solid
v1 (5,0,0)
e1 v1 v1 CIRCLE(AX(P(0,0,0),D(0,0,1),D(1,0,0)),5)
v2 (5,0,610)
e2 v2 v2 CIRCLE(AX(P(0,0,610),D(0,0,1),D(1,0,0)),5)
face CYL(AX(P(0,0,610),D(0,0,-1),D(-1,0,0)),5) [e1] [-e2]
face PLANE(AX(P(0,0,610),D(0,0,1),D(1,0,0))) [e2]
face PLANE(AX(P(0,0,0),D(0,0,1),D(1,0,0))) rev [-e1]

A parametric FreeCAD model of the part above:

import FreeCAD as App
import Part
import Sketcher
from FreeCAD import Vector

doc = App.newDocument("Part")
body = doc.addObject("PartDesign::Body", "Body")

sketch1 = body.newObject("Sketcher::SketchObject", "Sketch")
sketch1.AttachmentSupport = (doc.getObject("XY_Plane"), [""])
sketch1.MapMode = "FlatFace"
sketch1.addGeometry(Part.Circle(Vector(0, 0, 0), Vector(0, 0, 1), 5), False)
sketch1.addConstraint([
    Sketcher.Constraint("Coincident", 0, 3, -1, 1),
    Sketcher.Constraint("Diameter", 0, 10.0),
])
pad1 = body.newObject("PartDesign::Pad", "Pad")
pad1.Profile = sketch1
pad1.Length = 610

doc.recompute()
